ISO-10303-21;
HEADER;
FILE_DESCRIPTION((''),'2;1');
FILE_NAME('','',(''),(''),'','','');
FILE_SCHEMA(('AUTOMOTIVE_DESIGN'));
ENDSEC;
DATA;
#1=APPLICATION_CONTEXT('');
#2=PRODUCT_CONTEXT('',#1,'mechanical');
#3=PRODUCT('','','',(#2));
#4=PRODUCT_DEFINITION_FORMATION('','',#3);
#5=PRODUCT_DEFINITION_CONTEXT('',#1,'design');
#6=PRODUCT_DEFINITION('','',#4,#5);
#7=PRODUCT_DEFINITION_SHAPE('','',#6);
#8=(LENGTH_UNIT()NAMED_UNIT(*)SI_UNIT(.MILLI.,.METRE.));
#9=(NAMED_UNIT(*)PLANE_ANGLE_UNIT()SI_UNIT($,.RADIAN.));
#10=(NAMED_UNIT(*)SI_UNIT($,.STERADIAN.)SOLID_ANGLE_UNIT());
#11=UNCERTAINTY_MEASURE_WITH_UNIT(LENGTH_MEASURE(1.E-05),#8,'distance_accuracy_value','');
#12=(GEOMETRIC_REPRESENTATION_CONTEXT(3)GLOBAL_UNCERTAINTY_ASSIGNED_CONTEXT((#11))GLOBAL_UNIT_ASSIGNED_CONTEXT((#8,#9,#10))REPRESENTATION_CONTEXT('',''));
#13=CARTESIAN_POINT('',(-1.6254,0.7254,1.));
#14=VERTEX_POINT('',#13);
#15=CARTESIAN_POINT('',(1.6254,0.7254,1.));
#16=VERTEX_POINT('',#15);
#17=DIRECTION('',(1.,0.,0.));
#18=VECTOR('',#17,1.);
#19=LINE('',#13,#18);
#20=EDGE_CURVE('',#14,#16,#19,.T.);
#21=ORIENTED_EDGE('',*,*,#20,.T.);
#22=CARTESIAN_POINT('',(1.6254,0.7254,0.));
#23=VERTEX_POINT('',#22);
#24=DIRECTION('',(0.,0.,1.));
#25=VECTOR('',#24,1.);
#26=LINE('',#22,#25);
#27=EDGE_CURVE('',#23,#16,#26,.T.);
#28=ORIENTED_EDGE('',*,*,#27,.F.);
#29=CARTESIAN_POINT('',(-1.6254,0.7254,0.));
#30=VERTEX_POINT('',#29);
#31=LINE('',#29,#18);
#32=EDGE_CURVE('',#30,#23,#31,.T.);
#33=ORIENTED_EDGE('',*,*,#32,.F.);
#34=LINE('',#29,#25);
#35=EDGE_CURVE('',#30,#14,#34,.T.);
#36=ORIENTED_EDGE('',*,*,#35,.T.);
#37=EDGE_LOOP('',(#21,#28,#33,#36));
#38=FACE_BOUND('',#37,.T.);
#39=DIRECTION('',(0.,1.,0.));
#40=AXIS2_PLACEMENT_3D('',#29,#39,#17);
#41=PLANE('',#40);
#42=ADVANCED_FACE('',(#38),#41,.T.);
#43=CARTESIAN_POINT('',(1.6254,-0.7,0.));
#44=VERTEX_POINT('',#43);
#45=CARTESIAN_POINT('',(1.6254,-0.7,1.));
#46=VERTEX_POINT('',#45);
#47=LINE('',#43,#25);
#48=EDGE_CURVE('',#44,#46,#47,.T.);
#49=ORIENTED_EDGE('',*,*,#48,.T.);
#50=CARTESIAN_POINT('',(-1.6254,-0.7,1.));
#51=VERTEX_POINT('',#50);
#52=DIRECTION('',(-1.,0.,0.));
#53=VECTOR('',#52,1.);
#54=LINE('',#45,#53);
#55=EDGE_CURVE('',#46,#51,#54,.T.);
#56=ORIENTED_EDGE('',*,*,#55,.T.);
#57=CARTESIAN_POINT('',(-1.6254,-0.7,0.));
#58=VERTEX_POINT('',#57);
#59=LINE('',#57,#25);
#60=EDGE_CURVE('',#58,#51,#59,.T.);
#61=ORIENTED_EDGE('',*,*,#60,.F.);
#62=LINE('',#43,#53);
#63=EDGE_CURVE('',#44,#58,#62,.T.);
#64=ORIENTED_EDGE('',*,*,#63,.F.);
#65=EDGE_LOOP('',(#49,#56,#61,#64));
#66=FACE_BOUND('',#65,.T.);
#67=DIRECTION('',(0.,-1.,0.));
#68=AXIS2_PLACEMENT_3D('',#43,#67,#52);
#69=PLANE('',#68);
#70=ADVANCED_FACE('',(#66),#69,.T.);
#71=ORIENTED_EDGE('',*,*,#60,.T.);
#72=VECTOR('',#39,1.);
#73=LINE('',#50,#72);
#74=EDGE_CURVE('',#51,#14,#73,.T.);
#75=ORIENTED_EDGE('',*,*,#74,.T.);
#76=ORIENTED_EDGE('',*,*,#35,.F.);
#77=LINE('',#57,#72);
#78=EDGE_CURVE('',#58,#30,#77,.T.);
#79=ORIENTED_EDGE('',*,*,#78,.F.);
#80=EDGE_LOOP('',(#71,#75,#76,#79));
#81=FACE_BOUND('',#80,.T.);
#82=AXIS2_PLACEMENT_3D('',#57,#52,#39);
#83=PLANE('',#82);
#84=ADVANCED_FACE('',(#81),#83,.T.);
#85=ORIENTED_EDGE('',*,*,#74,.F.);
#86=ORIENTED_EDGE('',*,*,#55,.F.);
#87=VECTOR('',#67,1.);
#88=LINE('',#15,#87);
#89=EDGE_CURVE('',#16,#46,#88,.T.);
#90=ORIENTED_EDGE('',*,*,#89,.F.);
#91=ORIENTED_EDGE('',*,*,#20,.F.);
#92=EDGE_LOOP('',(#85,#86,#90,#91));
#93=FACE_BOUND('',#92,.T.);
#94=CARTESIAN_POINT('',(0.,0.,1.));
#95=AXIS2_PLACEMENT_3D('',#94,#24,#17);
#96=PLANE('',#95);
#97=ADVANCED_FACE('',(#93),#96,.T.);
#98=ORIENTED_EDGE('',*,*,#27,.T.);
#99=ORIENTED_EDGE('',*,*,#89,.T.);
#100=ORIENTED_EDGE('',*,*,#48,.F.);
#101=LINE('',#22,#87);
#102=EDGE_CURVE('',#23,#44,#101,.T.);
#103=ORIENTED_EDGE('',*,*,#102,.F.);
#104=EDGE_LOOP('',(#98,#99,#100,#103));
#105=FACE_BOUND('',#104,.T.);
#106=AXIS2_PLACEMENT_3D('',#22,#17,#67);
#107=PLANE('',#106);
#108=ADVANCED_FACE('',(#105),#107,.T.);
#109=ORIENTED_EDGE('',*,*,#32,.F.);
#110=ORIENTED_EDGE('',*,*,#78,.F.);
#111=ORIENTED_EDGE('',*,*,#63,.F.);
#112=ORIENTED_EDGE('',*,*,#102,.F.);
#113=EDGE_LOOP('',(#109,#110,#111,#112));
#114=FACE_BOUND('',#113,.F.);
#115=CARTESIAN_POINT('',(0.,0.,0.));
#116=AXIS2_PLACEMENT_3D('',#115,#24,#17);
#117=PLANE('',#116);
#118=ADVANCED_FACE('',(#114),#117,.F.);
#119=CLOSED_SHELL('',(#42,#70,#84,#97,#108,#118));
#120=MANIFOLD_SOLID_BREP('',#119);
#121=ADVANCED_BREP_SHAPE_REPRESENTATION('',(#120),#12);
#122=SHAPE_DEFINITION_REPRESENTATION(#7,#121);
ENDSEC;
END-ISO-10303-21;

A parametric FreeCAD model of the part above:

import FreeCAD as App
import Part
import Sketcher

V = App.Vector
Q = App.Units.Quantity

doc = App.newDocument("Part")
body = doc.addObject("PartDesign::Body", "Body")

# Sketch on XY plane
sketch1 = body.newObject("Sketcher::SketchObject", "Sketch")
sketch1.AttachmentSupport = (doc.getObject("XY_Plane"), [""])
sketch1.MapMode = "FlatFace"
sketch1.addGeometry([
    Part.LineSegment(V(1.6, 0.7, 0), V(-1.6, 0.7, 0)),
    Part.LineSegment(V(-1.6, 0.7, 0), V(-1.6, -0.7, 0)),
    Part.LineSegment(V(-1.6, -0.7, 0), V(1.6, -0.7, 0)),
    Part.LineSegment(V(1.6, -0.7, 0), V(1.6, 0.7, 0)),
], False)
sketch1.addConstraint([
    Sketcher.Constraint("Coincident", 0, 2, 1, 1),
    Sketcher.Constraint("Coincident", 1, 2, 2, 1),
    Sketcher.Constraint("Coincident", 2, 2, 3, 1),
    Sketcher.Constraint("Coincident", 3, 2, 0, 1),
    Sketcher.Constraint("Horizontal", 0),
    Sketcher.Constraint("Vertical", 1),
    Sketcher.Constraint("Horizontal", 2),
    Sketcher.Constraint("Vertical", 3),
    Sketcher.Constraint("DistanceY", 1, 2, -1, 1, Q("0.7 mm")),
    Sketcher.Constraint("DistanceX", 0, 2, 0, 1, Q("3.2508 mm")),
    Sketcher.Constraint("DistanceY", 1, 2, 1, 1, Q("1.4254 mm")),
    Sketcher.Constraint("DistanceX", 0, 2, -1, 1, Q("1.6254 mm")),
])
pad1 = body.newObject("PartDesign::Pad", "Pad")
pad1.Profile = sketch1
pad1.Length = 1

doc.recompute()
